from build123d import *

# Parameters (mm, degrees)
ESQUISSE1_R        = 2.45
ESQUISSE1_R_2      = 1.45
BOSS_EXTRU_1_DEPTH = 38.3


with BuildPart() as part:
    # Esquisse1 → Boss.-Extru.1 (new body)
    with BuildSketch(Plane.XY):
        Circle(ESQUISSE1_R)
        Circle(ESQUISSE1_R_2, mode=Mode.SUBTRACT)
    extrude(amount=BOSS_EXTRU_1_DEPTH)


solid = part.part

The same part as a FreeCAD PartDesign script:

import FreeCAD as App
import Part
import Sketcher

doc = App.newDocument("Part")
body = doc.addObject("PartDesign::Body", "Body")

# Sketch on XY plane
sketch1 = body.newObject("Sketcher::SketchObject", "Sketch")
sketch1.AttachmentSupport = (doc.getObject("XY_Plane"), [""])
sketch1.MapMode = "FlatFace"
sketch1.addGeometry([
    Part.Circle(App.Vector(0, 0, 0), App.Vector(0, 0, 1), 2.5),
    Part.Circle(App.Vector(0, 0, 0), App.Vector(0, 0, 1), 1.4),
], False)
sketch1.addConstraint([
    Sketcher.Constraint("Coincident", 0, 3, -1, 1),
    Sketcher.Constraint("Coincident", 1, 3, -1, 1),
    Sketcher.Constraint("Diameter", 0, 4.9),
    Sketcher.Constraint("Diameter", 1, 2.9),
])
pad1 = body.newObject("PartDesign::Pad", "Pad")
pad1.Profile = sketch1
pad1.Length = 38.3

doc.recompute()
